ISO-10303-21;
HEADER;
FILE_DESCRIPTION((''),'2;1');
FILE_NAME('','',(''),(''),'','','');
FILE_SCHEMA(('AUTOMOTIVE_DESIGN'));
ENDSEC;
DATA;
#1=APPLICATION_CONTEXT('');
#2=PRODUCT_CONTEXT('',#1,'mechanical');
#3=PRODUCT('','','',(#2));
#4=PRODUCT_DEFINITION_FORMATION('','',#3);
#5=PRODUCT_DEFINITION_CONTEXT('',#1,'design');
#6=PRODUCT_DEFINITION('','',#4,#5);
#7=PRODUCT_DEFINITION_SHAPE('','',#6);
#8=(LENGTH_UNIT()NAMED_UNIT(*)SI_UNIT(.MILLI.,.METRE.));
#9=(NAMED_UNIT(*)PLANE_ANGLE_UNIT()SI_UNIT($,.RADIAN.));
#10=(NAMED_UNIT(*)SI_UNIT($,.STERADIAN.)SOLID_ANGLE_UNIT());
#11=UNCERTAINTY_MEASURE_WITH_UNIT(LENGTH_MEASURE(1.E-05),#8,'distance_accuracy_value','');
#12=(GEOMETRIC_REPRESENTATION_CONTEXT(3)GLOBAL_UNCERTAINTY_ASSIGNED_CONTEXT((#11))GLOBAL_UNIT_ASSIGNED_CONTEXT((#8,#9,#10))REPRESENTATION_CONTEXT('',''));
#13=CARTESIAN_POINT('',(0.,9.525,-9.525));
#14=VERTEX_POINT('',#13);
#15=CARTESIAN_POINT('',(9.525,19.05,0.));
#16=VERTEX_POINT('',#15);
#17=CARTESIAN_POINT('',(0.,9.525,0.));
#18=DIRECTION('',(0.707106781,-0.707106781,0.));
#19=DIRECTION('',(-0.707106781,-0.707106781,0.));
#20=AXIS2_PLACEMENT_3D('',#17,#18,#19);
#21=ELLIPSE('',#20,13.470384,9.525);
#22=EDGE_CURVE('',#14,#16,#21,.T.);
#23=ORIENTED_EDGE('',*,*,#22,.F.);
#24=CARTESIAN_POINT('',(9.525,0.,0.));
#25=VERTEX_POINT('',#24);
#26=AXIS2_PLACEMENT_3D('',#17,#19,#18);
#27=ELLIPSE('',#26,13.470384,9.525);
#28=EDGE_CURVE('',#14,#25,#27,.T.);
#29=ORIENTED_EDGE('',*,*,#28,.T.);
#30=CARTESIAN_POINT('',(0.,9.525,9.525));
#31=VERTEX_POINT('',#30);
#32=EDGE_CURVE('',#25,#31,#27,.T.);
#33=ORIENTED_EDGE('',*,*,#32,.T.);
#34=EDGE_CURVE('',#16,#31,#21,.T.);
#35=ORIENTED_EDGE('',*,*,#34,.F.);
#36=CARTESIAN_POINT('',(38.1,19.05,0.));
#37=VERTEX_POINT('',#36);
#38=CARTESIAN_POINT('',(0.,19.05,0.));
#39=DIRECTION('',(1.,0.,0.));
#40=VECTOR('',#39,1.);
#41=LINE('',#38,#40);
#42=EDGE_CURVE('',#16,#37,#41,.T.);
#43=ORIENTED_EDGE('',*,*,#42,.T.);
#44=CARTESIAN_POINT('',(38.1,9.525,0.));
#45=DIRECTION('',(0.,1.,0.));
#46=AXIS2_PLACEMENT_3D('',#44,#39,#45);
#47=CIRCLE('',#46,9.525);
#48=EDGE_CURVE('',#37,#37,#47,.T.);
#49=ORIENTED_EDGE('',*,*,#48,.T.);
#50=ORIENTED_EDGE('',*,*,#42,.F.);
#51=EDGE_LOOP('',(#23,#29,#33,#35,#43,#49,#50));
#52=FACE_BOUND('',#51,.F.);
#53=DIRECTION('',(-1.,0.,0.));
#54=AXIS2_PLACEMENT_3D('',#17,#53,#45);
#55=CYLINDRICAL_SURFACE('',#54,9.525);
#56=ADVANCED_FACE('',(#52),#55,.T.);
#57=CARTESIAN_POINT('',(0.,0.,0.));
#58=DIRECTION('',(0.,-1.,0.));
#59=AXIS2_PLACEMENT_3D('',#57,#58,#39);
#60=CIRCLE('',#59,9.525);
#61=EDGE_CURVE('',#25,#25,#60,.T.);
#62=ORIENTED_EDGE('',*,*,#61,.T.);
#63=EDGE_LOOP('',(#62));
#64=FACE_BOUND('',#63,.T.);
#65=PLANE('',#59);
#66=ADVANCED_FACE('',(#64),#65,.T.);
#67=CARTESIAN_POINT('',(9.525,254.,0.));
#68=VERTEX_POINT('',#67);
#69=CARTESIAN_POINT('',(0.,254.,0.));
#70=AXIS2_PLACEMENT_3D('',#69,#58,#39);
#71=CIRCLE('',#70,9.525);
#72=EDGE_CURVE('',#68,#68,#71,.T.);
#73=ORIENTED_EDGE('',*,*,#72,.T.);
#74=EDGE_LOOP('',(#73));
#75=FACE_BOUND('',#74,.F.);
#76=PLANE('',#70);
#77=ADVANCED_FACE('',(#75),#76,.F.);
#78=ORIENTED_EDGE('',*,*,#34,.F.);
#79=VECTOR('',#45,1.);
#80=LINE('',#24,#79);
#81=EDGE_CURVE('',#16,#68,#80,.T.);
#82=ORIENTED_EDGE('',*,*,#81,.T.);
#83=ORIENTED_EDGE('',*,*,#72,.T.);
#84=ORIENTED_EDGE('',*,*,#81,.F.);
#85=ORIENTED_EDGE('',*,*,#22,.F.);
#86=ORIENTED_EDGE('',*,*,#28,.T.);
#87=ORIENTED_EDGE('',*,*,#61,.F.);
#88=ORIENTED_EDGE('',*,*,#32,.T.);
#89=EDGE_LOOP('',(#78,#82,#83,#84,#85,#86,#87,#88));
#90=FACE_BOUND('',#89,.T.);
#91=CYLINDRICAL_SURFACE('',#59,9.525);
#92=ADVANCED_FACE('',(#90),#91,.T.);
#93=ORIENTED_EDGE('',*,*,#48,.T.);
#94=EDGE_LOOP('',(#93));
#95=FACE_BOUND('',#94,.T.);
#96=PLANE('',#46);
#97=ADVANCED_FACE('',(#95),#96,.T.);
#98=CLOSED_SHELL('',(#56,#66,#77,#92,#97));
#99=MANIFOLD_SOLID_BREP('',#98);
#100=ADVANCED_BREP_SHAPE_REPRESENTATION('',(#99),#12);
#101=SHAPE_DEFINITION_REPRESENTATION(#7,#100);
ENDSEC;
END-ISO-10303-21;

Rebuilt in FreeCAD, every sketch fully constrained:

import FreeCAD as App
import Part
import Sketcher
from FreeCAD import Vector
Q = App.Units.Quantity

doc = App.newDocument("Part")
body = doc.addObject("PartDesign::Body", "Body")

# Sketch on XZ plane
sketch1 = doc.addObject("Sketcher::SketchObject", "Sketch")
body.addObject(sketch1)
sketch1.AttachmentSupport = (doc.XZ_Plane, [""])
sketch1.MapMode = "FlatFace"
sketch1.addGeometry(Part.Circle(Vector(0, 0, 0), Vector(0, 0, 1), 9.525), False)
sketch1.addConstraint(Sketcher.Constraint("Coincident", 0, 3, -1, 1))
sketch1.addConstraint(Sketcher.Constraint("Diameter", 0, Q("0.75 in")))
pad1 = doc.addObject("PartDesign::Pad", "Pad")
body.addObject(pad1)
pad1.Profile = sketch1
pad1.Length = Q("10 in")
pad1.Reversed = True

# Sketch on YZ plane
sketch2 = doc.addObject("Sketcher::SketchObject", "Sketch001")
body.addObject(sketch2)
sketch2.AttachmentSupport = (doc.YZ_Plane, [""])
sketch2.MapMode = "FlatFace"
sketch2.addGeometry(Part.Circle(Vector(9.525, 0, 0), Vector(0, 0, 1), 9.525), False)
sketch2.addConstraint(Sketcher.Constraint("PointOnObject", 0, 3, -1))
sketch2.addConstraint(Sketcher.Constraint("Diameter", 0, Q("0.75 in")))
sketch2.addConstraint(Sketcher.Constraint("DistanceX", -1, 1, 0, 3, Q("0.375 in")))
pad2 = doc.addObject("PartDesign::Pad", "Pad001")
body.addObject(pad2)
pad2.Profile = sketch2
pad2.Length = Q("1.5 in")

doc.recompute()
